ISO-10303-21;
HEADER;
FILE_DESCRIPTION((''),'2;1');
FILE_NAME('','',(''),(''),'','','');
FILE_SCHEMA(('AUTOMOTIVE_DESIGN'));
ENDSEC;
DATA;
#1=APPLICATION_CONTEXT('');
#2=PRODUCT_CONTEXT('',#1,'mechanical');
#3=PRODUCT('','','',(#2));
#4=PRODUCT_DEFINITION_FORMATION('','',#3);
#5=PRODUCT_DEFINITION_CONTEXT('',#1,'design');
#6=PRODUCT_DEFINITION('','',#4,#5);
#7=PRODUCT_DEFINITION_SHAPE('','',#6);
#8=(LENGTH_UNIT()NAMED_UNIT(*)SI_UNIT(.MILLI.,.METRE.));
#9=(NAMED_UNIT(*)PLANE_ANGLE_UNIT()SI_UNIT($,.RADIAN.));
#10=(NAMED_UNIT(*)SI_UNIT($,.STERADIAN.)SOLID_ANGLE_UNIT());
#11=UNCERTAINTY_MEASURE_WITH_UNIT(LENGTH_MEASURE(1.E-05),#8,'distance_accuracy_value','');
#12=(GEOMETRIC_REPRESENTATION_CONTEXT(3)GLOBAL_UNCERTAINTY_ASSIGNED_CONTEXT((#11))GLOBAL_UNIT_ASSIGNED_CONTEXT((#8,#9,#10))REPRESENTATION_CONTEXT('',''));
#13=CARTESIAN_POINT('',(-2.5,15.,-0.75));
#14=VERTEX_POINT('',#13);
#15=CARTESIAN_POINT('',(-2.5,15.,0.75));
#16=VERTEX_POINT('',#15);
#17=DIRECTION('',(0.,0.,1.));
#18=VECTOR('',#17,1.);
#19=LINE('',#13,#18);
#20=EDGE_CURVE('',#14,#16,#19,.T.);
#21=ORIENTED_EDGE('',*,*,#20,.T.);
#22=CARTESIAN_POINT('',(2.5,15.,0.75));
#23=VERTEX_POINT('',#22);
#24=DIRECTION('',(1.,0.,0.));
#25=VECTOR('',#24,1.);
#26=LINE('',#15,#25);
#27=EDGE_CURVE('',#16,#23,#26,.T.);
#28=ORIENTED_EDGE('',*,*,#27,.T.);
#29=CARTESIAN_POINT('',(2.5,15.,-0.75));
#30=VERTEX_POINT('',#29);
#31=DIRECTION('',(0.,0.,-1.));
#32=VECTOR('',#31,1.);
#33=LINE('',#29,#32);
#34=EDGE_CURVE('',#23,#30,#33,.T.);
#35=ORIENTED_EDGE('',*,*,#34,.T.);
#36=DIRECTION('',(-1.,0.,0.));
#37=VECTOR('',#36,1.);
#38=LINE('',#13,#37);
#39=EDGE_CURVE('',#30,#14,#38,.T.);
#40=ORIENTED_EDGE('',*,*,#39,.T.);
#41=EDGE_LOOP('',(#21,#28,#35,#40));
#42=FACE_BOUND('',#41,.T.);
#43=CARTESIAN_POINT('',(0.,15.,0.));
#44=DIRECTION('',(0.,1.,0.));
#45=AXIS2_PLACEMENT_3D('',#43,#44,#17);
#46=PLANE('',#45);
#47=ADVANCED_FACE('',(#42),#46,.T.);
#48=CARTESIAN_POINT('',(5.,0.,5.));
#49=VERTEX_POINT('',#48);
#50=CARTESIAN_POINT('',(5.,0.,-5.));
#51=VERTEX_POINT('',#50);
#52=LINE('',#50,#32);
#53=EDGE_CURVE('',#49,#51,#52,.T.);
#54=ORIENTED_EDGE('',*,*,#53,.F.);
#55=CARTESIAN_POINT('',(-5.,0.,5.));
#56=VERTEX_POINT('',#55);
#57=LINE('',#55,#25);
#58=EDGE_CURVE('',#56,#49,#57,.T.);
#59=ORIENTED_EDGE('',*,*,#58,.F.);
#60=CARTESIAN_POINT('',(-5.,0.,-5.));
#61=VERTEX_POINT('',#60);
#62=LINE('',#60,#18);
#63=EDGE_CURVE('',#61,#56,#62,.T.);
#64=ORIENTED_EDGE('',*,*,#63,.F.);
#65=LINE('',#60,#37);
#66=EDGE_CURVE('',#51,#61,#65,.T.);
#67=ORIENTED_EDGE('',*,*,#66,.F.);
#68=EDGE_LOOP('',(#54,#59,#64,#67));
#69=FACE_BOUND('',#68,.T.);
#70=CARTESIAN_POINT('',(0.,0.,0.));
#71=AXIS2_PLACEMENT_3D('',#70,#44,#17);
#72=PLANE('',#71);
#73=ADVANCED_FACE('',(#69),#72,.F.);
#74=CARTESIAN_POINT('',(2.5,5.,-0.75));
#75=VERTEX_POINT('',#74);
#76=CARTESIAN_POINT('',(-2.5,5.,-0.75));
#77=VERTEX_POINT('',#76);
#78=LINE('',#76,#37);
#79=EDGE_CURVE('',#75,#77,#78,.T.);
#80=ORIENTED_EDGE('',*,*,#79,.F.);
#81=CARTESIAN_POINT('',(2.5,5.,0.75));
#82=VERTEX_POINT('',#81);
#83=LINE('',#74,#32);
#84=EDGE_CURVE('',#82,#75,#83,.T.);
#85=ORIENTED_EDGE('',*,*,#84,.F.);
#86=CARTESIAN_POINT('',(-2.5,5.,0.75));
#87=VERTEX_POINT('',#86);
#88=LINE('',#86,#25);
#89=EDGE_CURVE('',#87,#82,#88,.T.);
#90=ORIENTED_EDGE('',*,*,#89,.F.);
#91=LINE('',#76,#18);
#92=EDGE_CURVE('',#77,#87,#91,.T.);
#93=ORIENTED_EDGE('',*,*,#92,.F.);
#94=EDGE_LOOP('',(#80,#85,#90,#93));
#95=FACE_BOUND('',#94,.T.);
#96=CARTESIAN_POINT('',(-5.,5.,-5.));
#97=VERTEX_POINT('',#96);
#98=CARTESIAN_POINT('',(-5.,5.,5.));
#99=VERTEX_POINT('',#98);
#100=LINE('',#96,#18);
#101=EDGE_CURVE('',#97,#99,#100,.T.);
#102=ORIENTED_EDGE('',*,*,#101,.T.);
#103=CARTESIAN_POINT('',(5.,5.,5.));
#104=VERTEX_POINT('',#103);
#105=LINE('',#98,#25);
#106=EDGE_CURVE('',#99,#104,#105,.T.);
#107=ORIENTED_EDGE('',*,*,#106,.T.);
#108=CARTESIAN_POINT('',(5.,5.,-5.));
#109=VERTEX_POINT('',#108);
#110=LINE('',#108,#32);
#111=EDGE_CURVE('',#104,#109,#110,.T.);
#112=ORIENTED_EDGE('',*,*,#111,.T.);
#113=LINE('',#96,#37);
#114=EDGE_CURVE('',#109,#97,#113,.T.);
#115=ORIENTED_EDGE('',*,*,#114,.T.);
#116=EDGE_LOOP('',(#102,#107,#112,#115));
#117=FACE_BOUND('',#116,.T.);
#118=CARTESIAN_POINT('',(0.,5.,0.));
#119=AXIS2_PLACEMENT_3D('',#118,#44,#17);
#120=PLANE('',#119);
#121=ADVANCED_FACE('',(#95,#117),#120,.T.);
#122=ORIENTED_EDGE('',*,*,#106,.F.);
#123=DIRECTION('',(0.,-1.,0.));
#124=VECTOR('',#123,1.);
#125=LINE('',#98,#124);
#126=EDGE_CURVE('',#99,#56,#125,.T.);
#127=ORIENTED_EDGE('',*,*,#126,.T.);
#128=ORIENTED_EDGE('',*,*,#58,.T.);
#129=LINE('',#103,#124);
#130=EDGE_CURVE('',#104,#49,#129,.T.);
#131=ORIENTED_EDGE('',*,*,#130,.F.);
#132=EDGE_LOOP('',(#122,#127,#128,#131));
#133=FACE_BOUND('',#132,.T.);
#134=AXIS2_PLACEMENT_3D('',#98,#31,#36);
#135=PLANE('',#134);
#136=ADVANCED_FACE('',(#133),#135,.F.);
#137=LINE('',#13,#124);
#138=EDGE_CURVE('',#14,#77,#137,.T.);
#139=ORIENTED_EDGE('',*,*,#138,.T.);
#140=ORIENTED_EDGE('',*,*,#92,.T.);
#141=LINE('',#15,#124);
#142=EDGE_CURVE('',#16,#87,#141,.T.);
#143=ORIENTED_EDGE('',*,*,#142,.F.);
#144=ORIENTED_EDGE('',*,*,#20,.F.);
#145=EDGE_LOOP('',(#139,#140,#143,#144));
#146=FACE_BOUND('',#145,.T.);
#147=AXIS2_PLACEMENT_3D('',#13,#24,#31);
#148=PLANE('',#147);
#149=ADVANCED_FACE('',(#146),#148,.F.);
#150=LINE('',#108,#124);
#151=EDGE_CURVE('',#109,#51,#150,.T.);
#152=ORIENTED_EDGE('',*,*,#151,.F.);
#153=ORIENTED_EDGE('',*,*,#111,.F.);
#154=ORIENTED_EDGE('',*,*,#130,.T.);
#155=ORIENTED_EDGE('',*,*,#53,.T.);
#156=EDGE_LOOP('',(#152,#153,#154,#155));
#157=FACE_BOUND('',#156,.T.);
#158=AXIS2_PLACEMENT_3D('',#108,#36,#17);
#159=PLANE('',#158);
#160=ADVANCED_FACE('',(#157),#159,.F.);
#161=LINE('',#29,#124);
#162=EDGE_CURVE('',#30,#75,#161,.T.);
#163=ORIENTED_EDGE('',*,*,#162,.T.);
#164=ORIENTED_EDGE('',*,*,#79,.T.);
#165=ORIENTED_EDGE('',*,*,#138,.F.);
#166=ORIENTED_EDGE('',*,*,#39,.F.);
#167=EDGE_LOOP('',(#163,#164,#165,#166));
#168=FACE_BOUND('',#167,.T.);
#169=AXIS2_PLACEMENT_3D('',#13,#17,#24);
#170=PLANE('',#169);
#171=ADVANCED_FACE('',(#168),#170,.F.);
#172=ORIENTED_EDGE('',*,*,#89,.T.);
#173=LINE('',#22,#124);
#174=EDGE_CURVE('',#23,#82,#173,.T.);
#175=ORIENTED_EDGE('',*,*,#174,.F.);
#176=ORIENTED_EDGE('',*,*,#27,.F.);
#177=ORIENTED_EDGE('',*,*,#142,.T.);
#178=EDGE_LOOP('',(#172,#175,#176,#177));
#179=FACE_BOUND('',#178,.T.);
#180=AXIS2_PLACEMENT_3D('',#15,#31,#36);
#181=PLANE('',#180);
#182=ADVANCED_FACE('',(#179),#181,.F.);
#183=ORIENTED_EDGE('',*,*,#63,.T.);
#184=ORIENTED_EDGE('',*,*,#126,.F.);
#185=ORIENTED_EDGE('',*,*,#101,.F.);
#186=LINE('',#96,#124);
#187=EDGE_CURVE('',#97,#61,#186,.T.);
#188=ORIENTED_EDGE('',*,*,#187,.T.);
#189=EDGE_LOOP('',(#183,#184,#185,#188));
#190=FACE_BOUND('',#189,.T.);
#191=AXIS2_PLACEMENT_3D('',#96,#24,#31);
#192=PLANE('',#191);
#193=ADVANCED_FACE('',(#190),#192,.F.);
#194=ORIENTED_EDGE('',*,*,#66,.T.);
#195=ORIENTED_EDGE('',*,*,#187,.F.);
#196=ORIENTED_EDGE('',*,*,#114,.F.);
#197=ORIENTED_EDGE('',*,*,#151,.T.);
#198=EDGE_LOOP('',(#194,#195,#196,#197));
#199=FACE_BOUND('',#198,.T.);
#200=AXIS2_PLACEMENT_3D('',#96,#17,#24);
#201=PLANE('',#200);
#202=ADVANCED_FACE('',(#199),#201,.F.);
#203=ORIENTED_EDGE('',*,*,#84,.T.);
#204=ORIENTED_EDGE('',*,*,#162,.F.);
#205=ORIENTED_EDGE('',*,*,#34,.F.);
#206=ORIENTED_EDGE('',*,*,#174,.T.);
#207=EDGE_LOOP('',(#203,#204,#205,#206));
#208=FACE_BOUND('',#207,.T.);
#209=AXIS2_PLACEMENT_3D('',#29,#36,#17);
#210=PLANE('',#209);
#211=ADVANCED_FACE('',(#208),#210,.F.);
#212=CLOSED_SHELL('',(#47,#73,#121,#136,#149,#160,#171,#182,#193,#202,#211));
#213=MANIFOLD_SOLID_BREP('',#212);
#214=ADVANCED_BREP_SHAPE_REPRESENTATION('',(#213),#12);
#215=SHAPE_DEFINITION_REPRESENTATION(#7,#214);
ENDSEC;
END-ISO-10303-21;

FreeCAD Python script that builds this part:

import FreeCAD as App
import Part
import Sketcher

V = App.Vector
Q = App.Units.Quantity

doc = App.newDocument("Part")
body = doc.addObject("PartDesign::Body", "Body")

# Sketch on XZ plane
sketch1 = body.newObject("Sketcher::SketchObject", "Sketch")
sketch1.AttachmentSupport = (doc.getObject("XZ_Plane"), [""])
sketch1.MapMode = "FlatFace"
sketch1.addGeometry([
    Part.LineSegment(V(-5, -5, 0), V(-5, 5, 0)),
    Part.LineSegment(V(-5, 5, 0), V(5, 5, 0)),
    Part.LineSegment(V(5, 5, 0), V(5, -5, 0)),
    Part.LineSegment(V(5, -5, 0), V(-5, -5, 0)),
], False)
sketch1.addConstraint([
    Sketcher.Constraint("Coincident", 0, 2, 1, 1),
    Sketcher.Constraint("Coincident", 1, 2, 2, 1),
    Sketcher.Constraint("Coincident", 2, 2, 3, 1),
    Sketcher.Constraint("Coincident", 3, 2, 0, 1),
    Sketcher.Constraint("Vertical", 0),
    Sketcher.Constraint("Horizontal", 1),
    Sketcher.Constraint("Vertical", 2),
    Sketcher.Constraint("Horizontal", 3),
    Sketcher.Constraint("Symmetric", 0, 2, 2, 2, -1, 1),
    Sketcher.Constraint("Equal", 3, 0),
    Sketcher.Constraint("DistanceX", 1, 1, 1, 2, Q("10 mm")),
])
pad1 = body.newObject("PartDesign::Pad", "Pad")
pad1.Profile = sketch1
pad1.Length = 5
pad1.Reversed = True

# Sketch on XZ plane
sketch2 = body.newObject("Sketcher::SketchObject", "Sketch001")
sketch2.AttachmentSupport = (doc.getObject("XZ_Plane"), [""])
sketch2.MapMode = "FlatFace"
sketch2.AttachmentOffset = App.Placement(V(0, 0, -5), App.Rotation())
sketch2.addGeometry([
    Part.LineSegment(V(-2.5, -0.8, 0), V(-2.5, 0.8, 0)),
    Part.LineSegment(V(-2.5, 0.8, 0), V(2.5, 0.8, 0)),
    Part.LineSegment(V(2.5, 0.8, 0), V(2.5, -0.8, 0)),
    Part.LineSegment(V(2.5, -0.8, 0), V(-2.5, -0.8, 0)),
], False)
sketch2.addConstraint([
    Sketcher.Constraint("Coincident", 0, 2, 1, 1),
    Sketcher.Constraint("Coincident", 1, 2, 2, 1),
    Sketcher.Constraint("Coincident", 2, 2, 3, 1),
    Sketcher.Constraint("Coincident", 3, 2, 0, 1),
    Sketcher.Constraint("Vertical", 0),
    Sketcher.Constraint("Horizontal", 1),
    Sketcher.Constraint("Vertical", 2),
    Sketcher.Constraint("Horizontal", 3),
    Sketcher.Constraint("Symmetric", 0, 2, 2, 2, -1, 1),
    Sketcher.Constraint("DistanceX", 1, 1, 1, 2, Q("5 mm")),
    Sketcher.Constraint("DistanceY", 0, 1, 0, 2, Q("1.5 mm")),
])
pad2 = body.newObject("PartDesign::Pad", "Pad001")
pad2.Profile = sketch2
pad2.Length = 10
pad2.Reversed = True

doc.recompute()
